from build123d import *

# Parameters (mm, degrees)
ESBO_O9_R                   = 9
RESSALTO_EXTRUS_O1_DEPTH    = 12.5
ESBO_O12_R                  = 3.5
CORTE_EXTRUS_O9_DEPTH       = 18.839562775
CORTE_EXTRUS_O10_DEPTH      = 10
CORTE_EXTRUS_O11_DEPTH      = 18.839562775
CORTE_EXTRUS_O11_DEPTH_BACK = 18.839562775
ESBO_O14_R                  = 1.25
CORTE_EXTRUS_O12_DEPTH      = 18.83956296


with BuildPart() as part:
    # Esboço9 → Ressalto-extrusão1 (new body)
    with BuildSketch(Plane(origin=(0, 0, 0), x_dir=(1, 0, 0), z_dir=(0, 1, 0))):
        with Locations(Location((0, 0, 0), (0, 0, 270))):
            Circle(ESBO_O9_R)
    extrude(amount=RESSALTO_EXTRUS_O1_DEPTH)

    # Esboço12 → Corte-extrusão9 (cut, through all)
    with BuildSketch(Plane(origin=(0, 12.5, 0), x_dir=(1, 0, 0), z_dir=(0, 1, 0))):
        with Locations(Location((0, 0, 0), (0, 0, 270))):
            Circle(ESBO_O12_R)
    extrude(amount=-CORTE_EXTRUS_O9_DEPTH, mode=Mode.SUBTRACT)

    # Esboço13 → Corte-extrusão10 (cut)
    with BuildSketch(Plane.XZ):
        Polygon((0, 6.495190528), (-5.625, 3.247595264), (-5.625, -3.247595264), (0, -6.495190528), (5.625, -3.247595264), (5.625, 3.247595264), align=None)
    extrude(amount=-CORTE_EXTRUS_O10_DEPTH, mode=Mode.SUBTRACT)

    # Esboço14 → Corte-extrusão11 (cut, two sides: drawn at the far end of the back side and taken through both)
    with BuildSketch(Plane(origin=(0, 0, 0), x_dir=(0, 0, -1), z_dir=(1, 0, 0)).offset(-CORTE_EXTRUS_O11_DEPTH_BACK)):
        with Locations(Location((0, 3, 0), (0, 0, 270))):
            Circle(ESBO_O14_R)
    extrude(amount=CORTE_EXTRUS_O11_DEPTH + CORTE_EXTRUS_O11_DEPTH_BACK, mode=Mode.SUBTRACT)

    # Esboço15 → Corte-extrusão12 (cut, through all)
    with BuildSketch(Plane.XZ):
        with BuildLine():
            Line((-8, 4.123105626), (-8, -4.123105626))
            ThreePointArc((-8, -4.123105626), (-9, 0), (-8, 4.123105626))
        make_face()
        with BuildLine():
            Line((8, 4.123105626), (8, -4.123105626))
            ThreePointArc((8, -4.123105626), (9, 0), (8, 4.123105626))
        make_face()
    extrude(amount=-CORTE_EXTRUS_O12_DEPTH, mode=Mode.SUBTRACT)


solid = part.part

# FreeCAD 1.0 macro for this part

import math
import FreeCAD as App
import Part
import Sketcher
from FreeCAD import Vector
Q = App.Units.Quantity

doc = App.newDocument("Part")
body = doc.addObject("PartDesign::Body", "Body")

# Sketch on XZ plane
sketch1 = body.newObject("Sketcher::SketchObject", "Sketch")
sketch1.AttachmentSupport = (doc.getObject("XZ_Plane"), [""])
sketch1.MapMode = "FlatFace"
sketch1.addGeometry(Part.Circle(Vector(0, 0, 0), Vector(0, 0, 1), 9), False)
sketch1.addConstraint([
    Sketcher.Constraint("Coincident", 0, 3, -1, 1),
    Sketcher.Constraint("Diameter", 0, Q("18 mm")),
])
pad1 = body.newObject("PartDesign::Pad", "Pad")
pad1.Profile = sketch1
pad1.Length = 12.5
pad1.Reversed = True

# Sketch on XZ plane
sketch2 = body.newObject("Sketcher::SketchObject", "Sketch001")
sketch2.AttachmentSupport = (doc.getObject("XZ_Plane"), [""])
sketch2.MapMode = "FlatFace"
sketch2.AttachmentOffset = App.Placement(Vector(0, 0, -12.5), App.Rotation())
sketch2.addGeometry(Part.Circle(Vector(0, 0, 0), Vector(0, 0, 1), 3.5), False)
sketch2.addConstraint([
    Sketcher.Constraint("Coincident", 0, 3, -1, 1),
    Sketcher.Constraint("Diameter", 0, Q("7 mm")),
])
pocket1 = body.newObject("PartDesign::Pocket", "Pocket")
pocket1.Profile = sketch2
pocket1.Type = "ThroughAll"
pocket1.Reversed = True

# Sketch on XZ plane
sketch3 = body.newObject("Sketcher::SketchObject", "Sketch002")
sketch3.AttachmentSupport = (doc.getObject("XZ_Plane"), [""])
sketch3.MapMode = "FlatFace"
sketch3.addGeometry([
    Part.LineSegment(Vector(0, 6.495191, 0), Vector(-5.625, 3.247595, 0)),  # 0
    Part.LineSegment(Vector(-5.625, 3.247595, 0), Vector(-5.625, -3.247595, 0)),  # 1
    Part.LineSegment(Vector(-5.625, -3.247595, 0), Vector(0, -6.495191, 0)),  # 2
    Part.LineSegment(Vector(0, -6.495191, 0), Vector(5.625, -3.247595, 0)),  # 3
    Part.LineSegment(Vector(5.625, -3.247595, 0), Vector(5.625, 3.247595, 0)),  # 4
    Part.LineSegment(Vector(5.625, 3.247595, 0), Vector(0, 6.495191, 0)),  # 5
], False)
sketch3.addConstraint([
    Sketcher.Constraint("Coincident", 0, 2, 1, 1),
    Sketcher.Constraint("Coincident", 1, 2, 2, 1),
    Sketcher.Constraint("Coincident", 2, 2, 3, 1),
    Sketcher.Constraint("Coincident", 3, 2, 4, 1),
    Sketcher.Constraint("Coincident", 4, 2, 5, 1),
    Sketcher.Constraint("Coincident", 5, 2, 0, 1),
    Sketcher.Constraint("Vertical", 1),
    Sketcher.Constraint("Vertical", 4),
    Sketcher.Constraint("Symmetric", 0, 2, 3, 2, -1, 1),
    Sketcher.Constraint("Symmetric", 2, 2, 5, 2, -1, 1),
    Sketcher.Constraint("PointOnObject", 2, 2, -2),
    Sketcher.Constraint("Parallel", 2, 5),
    Sketcher.Constraint("Horizontal", 1, 2, 3, 2),
    Sketcher.Constraint("Angle", 0, Q("-150 deg")),
    Sketcher.Constraint("DistanceX", 1, 2, 3, 2, Q("11.25 mm")),
    Sketcher.Constraint("DistanceY", 1, 2, 1, 1, Q("6.495191 mm")),
])
pocket2 = body.newObject("PartDesign::Pocket", "Pocket001")
pocket2.Profile = sketch3
pocket2.Length = 10

# Sketch on YZ plane
sketch4 = body.newObject("Sketcher::SketchObject", "Sketch003")
sketch4.AttachmentSupport = (doc.getObject("YZ_Plane"), [""])
sketch4.MapMode = "FlatFace"
sketch4.addGeometry(Part.Circle(Vector(3, 0, 0), Vector(0, 0, 1), 1.25), False)
sketch4.addConstraint([
    Sketcher.Constraint("PointOnObject", 0, 3, -1),
    Sketcher.Constraint("Diameter", 0, Q("2.5 mm")),
    Sketcher.Constraint("DistanceX", -1, 1, 0, 3, Q("3 mm")),
])
pocket3 = body.newObject("PartDesign::Pocket", "Pocket002")
pocket3.Profile = sketch4
pocket3.Type = "ThroughAll"
pocket3.Midplane = True

# Sketch on XZ plane
sketch5 = body.newObject("Sketcher::SketchObject", "Sketch004")
sketch5.AttachmentSupport = (doc.getObject("XZ_Plane"), [""])
sketch5.MapMode = "FlatFace"
sketch5.addGeometry([
    Part.LineSegment(Vector(-8, -4.123106, 0), Vector(-8, 4.123106, 0)),
    Part.ArcOfCircle(Part.Circle(Vector(0, 0, 0), Vector(0, 0, 1), 9), math.radians(152.733956), math.radians(207.266044)),
    Part.LineSegment(Vector(8, 4.123106, 0), Vector(8, -4.123106, 0)),
    Part.ArcOfCircle(Part.Circle(Vector(0, 0, 0), Vector(0, 0, 1), 9), math.radians(-27.266044), math.radians(27.266044)),
], False)
sketch5.addConstraint([
    Sketcher.Constraint("Coincident", 0, 1, 1, 2),
    Sketcher.Constraint("Coincident", 1, 1, 0, 2),
    Sketcher.Constraint("Coincident", 2, 1, 3, 2),
    Sketcher.Constraint("Coincident", 3, 1, 2, 2),
    Sketcher.Constraint("Vertical", 0),
    Sketcher.Constraint("Vertical", 2),
    Sketcher.Constraint("Coincident", 1, 3, -1, 1),
    Sketcher.Constraint("Coincident", 3, 3, -1, 1),
    Sketcher.Constraint("Equal", 1, 3),
    Sketcher.Constraint("Horizontal", 1, 1, 2, 1),
    Sketcher.Constraint("Radius", 1, Q("9 mm")),
    Sketcher.Constraint("DistanceX", 0, 1, -1, 1, Q("8 mm")),
])
pocket4 = body.newObject("PartDesign::Pocket", "Pocket003")
pocket4.Profile = sketch5
pocket4.Type = "ThroughAll"

doc.recompute()
